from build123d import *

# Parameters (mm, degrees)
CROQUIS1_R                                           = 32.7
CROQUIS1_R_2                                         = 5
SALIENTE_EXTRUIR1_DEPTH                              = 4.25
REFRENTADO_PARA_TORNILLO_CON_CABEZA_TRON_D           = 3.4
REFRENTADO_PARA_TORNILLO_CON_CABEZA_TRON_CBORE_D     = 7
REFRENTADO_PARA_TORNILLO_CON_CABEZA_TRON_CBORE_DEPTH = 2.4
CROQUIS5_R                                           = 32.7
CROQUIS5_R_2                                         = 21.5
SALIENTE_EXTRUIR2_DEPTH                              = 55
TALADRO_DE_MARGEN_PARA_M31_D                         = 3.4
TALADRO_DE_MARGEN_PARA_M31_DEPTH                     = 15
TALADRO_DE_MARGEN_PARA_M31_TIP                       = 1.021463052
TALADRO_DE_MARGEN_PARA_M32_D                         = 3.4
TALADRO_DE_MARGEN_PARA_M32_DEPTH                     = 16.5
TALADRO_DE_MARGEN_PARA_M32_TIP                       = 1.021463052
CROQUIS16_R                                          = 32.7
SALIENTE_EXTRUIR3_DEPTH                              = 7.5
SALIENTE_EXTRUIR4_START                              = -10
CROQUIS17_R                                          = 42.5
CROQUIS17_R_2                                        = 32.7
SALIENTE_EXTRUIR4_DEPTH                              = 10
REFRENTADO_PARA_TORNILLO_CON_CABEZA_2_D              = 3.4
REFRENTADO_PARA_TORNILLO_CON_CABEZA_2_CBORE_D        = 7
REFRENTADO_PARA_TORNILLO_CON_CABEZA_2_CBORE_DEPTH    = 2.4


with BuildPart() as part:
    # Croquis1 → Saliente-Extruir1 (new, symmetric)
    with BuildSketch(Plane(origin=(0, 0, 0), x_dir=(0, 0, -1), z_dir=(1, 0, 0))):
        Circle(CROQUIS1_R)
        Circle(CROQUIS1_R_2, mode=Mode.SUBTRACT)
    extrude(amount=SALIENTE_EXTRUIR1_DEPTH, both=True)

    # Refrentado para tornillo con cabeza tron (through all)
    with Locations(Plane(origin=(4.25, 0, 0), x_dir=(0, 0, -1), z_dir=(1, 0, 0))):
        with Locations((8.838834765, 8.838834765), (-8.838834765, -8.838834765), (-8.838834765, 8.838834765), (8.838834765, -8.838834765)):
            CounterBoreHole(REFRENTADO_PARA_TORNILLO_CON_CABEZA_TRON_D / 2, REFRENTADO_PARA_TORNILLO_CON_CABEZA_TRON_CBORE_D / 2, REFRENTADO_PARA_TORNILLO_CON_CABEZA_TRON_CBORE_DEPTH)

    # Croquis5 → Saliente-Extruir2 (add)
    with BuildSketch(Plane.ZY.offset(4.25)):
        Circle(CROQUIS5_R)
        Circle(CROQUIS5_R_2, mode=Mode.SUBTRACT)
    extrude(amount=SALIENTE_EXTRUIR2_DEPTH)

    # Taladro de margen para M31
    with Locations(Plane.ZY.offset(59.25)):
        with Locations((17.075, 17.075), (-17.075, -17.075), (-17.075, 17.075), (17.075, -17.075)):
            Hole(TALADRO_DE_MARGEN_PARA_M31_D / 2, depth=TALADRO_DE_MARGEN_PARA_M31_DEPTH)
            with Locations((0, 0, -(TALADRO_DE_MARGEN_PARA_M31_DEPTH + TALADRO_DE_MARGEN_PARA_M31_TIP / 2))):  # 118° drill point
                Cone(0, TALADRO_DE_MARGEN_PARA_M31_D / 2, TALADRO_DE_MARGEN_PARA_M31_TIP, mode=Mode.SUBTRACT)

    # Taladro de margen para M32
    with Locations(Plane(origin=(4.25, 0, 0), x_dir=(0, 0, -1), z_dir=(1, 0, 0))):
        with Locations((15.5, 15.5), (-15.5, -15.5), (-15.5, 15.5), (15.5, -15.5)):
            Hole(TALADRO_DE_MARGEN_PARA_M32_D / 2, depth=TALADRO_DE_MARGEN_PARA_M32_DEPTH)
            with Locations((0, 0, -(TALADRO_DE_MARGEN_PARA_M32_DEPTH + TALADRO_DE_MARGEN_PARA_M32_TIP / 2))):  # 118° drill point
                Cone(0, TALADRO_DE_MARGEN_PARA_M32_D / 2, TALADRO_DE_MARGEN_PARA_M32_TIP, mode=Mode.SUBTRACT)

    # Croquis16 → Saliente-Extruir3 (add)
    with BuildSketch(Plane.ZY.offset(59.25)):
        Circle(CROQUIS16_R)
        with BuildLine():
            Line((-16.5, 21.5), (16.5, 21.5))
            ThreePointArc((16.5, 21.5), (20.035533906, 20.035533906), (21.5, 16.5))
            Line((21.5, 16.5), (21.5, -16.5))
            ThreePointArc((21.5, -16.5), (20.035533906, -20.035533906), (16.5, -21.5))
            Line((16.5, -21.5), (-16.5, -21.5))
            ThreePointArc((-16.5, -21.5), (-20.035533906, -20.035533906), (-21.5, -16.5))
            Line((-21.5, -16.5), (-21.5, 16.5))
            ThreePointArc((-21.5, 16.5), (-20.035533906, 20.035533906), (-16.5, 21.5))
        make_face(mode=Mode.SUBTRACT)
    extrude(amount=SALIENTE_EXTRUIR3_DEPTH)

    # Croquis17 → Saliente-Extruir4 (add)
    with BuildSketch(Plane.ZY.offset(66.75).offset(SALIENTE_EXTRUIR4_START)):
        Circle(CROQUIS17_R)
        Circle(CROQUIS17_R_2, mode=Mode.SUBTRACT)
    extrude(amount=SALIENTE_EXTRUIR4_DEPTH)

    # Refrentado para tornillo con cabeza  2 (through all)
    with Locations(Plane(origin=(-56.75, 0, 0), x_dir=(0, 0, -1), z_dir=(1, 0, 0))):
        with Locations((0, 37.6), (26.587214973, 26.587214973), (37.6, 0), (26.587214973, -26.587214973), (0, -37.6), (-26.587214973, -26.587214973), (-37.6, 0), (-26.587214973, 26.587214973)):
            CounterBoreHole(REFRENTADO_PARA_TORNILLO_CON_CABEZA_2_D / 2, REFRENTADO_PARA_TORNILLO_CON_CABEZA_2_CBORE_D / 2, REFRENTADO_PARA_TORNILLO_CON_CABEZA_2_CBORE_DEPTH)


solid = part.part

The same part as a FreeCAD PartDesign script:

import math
import FreeCAD as App
import Part
import Sketcher

V = App.Vector
Q = App.Units.Quantity

doc = App.newDocument("Part")
body = doc.addObject("PartDesign::Body", "Body")

sketch1 = body.newObject("Sketcher::SketchObject", "Sketch")
sketch1.AttachmentSupport = (doc.getObject("YZ_Plane"), [""])
sketch1.MapMode = "FlatFace"
sketch1.addGeometry([
    Part.Circle(V(0, 0, 0), V(0, 0, 1), 33),
    Part.Circle(V(0, 0, 0), V(0, 0, 1), 5),
], False)
sketch1.addConstraint([
    Sketcher.Constraint("Coincident", 0, 3, -1, 1),
    Sketcher.Constraint("Coincident", 1, 3, -1, 1),
    Sketcher.Constraint("Diameter", 1, Q("10 mm")),
    Sketcher.Constraint("Diameter", 0, Q("65.4 mm")),
])
pad1 = body.newObject("PartDesign::Pad", "Pad")
pad1.Profile = sketch1
pad1.Length = 8.5
pad1.Midplane = True

sketch2 = body.newObject("Sketcher::SketchObject", "Sketch001")
sketch2.AttachmentSupport = (doc.getObject("YZ_Plane"), [""])
sketch2.MapMode = "FlatFace"
sketch2.AttachmentOffset = App.Placement(V(0, 0, 4.25), App.Rotation())
sketch2.addGeometry([
    Part.Circle(V(8.8, -8.8, 0), V(0, 0, 1), 1.7),
    Part.Circle(V(-8.8, 8.8, 0), V(0, 0, 1), 1.7),
    Part.Circle(V(8.8, 8.8, 0), V(0, 0, 1), 1.7),
    Part.Circle(V(-8.8, -8.8, 0), V(0, 0, 1), 1.7),
], False)
sketch2.addConstraint([
    Sketcher.Constraint("Equal", 0, 1),
    Sketcher.Constraint("Equal", 1, 2),
    Sketcher.Constraint("Equal", 2, 3),
    Sketcher.Constraint("Symmetric", 0, 3, 1, 3, -1, 1),
    Sketcher.Constraint("Symmetric", 2, 3, 3, 3, -1, 1),
    Sketcher.Constraint("Symmetric", 1, 3, 2, 3, -2),
    Sketcher.Constraint("Diameter", 0, Q("3.4 mm")),
    Sketcher.Constraint("DistanceX", 1, 3, 0, 3, Q("17.67767 mm")),
    Sketcher.Constraint("DistanceY", 0, 3, 1, 3, Q("17.67767 mm")),
])
doc.recompute()
hole = body.newObject("PartDesign::Hole", "Hole")
hole.Profile = sketch2
hole.ThreadType = "None"
hole.Diameter = 3.4
hole.DepthType = "ThroughAll"
hole.HoleCutType = "Counterbore"
hole.HoleCutDiameter = 7
hole.HoleCutDepth = 2.4

sketch3 = body.newObject("Sketcher::SketchObject", "Sketch002")
sketch3.AttachmentSupport = (doc.getObject("YZ_Plane"), [""])
sketch3.MapMode = "FlatFace"
sketch3.AttachmentOffset = App.Placement(V(0, 0, -4.25), App.Rotation())
sketch3.addGeometry([
    Part.Circle(V(0, 0, 0), V(0, 0, 1), 33),
    Part.Circle(V(0, 0, 0), V(0, 0, 1), 22),
], False)
sketch3.addConstraint([
    Sketcher.Constraint("Coincident", 0, 3, -1, 1),
    Sketcher.Constraint("Coincident", 1, 3, -1, 1),
    Sketcher.Constraint("Diameter", 1, Q("43 mm")),
    Sketcher.Constraint("Diameter", 0, Q("65.4 mm")),
])
pad2 = body.newObject("PartDesign::Pad", "Pad001")
pad2.Profile = sketch3
pad2.Length = 55
pad2.Reversed = True

sketch4 = body.newObject("Sketcher::SketchObject", "Sketch003")
sketch4.AttachmentSupport = (doc.getObject("YZ_Plane"), [""])
sketch4.MapMode = "FlatFace"
sketch4.AttachmentOffset = App.Placement(V(0, 0, -59.25), App.Rotation())
sketch4.addGeometry([
    Part.Circle(V(17.1, 17.1, 0), V(0, 0, 1), 1.7),
    Part.Circle(V(-17.1, -17.1, 0), V(0, 0, 1), 1.7),
    Part.Circle(V(17.1, -17.1, 0), V(0, 0, 1), 1.7),
    Part.Circle(V(-17.1, 17.1, 0), V(0, 0, 1), 1.7),
], False)
sketch4.addConstraint([
    Sketcher.Constraint("Equal", 0, 1),
    Sketcher.Constraint("Equal", 1, 2),
    Sketcher.Constraint("Equal", 2, 3),
    Sketcher.Constraint("Symmetric", 0, 3, 1, 3, -1, 1),
    Sketcher.Constraint("Symmetric", 2, 3, 3, 3, -1, 1),
    Sketcher.Constraint("Symmetric", 1, 3, 2, 3, -2),
    Sketcher.Constraint("Diameter", 0, Q("3.4 mm")),
    Sketcher.Constraint("DistanceX", 1, 3, 0, 3, Q("34.15 mm")),
    Sketcher.Constraint("DistanceY", 1, 3, 0, 3, Q("34.15 mm")),
])
doc.recompute()
hole2 = body.newObject("PartDesign::Hole", "Hole001")
hole2.Profile = sketch4
hole2.ThreadType = "None"
hole2.Diameter = 3.4
hole2.DepthType = "Dimension"
hole2.Depth = 15
hole2.DrillPoint = "Angled"
hole2.DrillPointAngle = 118
hole2.Reversed = True

sketch5 = body.newObject("Sketcher::SketchObject", "Sketch004")
sketch5.AttachmentSupport = (doc.getObject("YZ_Plane"), [""])
sketch5.MapMode = "FlatFace"
sketch5.AttachmentOffset = App.Placement(V(0, 0, 4.25), App.Rotation())
sketch5.addGeometry([
    Part.Circle(V(15.5, -15.5, 0), V(0, 0, 1), 1.7),
    Part.Circle(V(-15.5, 15.5, 0), V(0, 0, 1), 1.7),
    Part.Circle(V(15.5, 15.5, 0), V(0, 0, 1), 1.7),
    Part.Circle(V(-15.5, -15.5, 0), V(0, 0, 1), 1.7),
], False)
sketch5.addConstraint([
    Sketcher.Constraint("Equal", 0, 1),
    Sketcher.Constraint("Equal", 1, 2),
    Sketcher.Constraint("Equal", 2, 3),
    Sketcher.Constraint("Symmetric", 0, 3, 1, 3, -1, 1),
    Sketcher.Constraint("Symmetric", 2, 3, 3, 3, -1, 1),
    Sketcher.Constraint("Symmetric", 1, 3, 2, 3, -2),
    Sketcher.Constraint("Diameter", 0, Q("3.4 mm")),
    Sketcher.Constraint("DistanceX", 1, 3, 0, 3, Q("31 mm")),
    Sketcher.Constraint("DistanceY", 0, 3, 1, 3, Q("31 mm")),
])
doc.recompute()
hole3 = body.newObject("PartDesign::Hole", "Hole002")
hole3.Profile = sketch5
hole3.ThreadType = "None"
hole3.Diameter = 3.4
hole3.DepthType = "Dimension"
hole3.Depth = 16.5
hole3.DrillPoint = "Angled"
hole3.DrillPointAngle = 118

sketch6 = body.newObject("Sketcher::SketchObject", "Sketch005")
sketch6.AttachmentSupport = (doc.getObject("YZ_Plane"), [""])
sketch6.MapMode = "FlatFace"
sketch6.AttachmentOffset = App.Placement(V(0, 0, -59.25), App.Rotation())
sketch6.addGeometry([
    Part.Circle(V(0, 0, 0), V(0, 0, 1), 33),
    Part.ArcOfCircle(Part.Circle(V(16, -16, 0), V(0, 0, 1), 5), math.radians(-90), math.radians(0)),
    Part.LineSegment(V(22, -16, 0), V(22, 16, 0)),
    Part.ArcOfCircle(Part.Circle(V(16, 16, 0), V(0, 0, 1), 5), math.radians(0), math.radians(90)),
    Part.LineSegment(V(16, 22, 0), V(-16, 22, 0)),
    Part.ArcOfCircle(Part.Circle(V(-16, 16, 0), V(0, 0, 1), 5), math.radians(90), math.radians(180)),
    Part.LineSegment(V(-22, 16, 0), V(-22, -16, 0)),
    Part.ArcOfCircle(Part.Circle(V(-16, -16, 0), V(0, 0, 1), 5), math.radians(180), math.radians(270)),
    Part.LineSegment(V(-16, -22, 0), V(16, -22, 0)),
], False)
sketch6.addConstraint([
    Sketcher.Constraint("Tangent", 1, 2, 2, 1),
    Sketcher.Constraint("Tangent", 2, 2, 3, 1),
    Sketcher.Constraint("Tangent", 3, 2, 4, 1),
    Sketcher.Constraint("Tangent", 4, 2, 5, 1),
    Sketcher.Constraint("Tangent", 5, 2, 6, 1),
    Sketcher.Constraint("Tangent", 6, 2, 7, 1),
    Sketcher.Constraint("Tangent", 7, 2, 8, 1),
    Sketcher.Constraint("Tangent", 8, 2, 1, 1),
    Sketcher.Constraint("Vertical", 2),
    Sketcher.Constraint("Horizontal", 4),
    Sketcher.Constraint("Vertical", 6),
    Sketcher.Constraint("Horizontal", 8),
    Sketcher.Constraint("Coincident", 0, 3, -1, 1),
    Sketcher.Constraint("Equal", 1, 3),
    Sketcher.Constraint("Equal", 3, 5),
    Sketcher.Constraint("Equal", 5, 7),
    Sketcher.Constraint("Symmetric", 1, 3, 5, 3, -1, 1),
    Sketcher.Constraint("Equal", 8, 2),
    Sketcher.Constraint("Radius", 1, Q("5 mm")),
    Sketcher.Constraint("Diameter", 0, Q("65.4 mm")),
    Sketcher.Constraint("DistanceX", 4, 2, 4, 1, Q("33 mm")),
])
pad3 = body.newObject("PartDesign::Pad", "Pad002")
pad3.Profile = sketch6
pad3.Length = 7.5
pad3.Reversed = True

sketch7 = body.newObject("Sketcher::SketchObject", "Sketch006")
sketch7.AttachmentSupport = (doc.getObject("YZ_Plane"), [""])
sketch7.MapMode = "FlatFace"
sketch7.AttachmentOffset = App.Placement(V(0, 0, -56.75), App.Rotation())
sketch7.addGeometry([
    Part.Circle(V(0, 0, 0), V(0, 0, 1), 42),
    Part.Circle(V(0, 0, 0), V(0, 0, 1), 33),
], False)
sketch7.addConstraint([
    Sketcher.Constraint("Coincident", 0, 3, -1, 1),
    Sketcher.Constraint("Coincident", 1, 3, -1, 1),
    Sketcher.Constraint("Diameter", 0, Q("85 mm")),
    Sketcher.Constraint("Diameter", 1, Q("65.4 mm")),
])
pad4 = body.newObject("PartDesign::Pad", "Pad003")
pad4.Profile = sketch7
pad4.Length = 10
pad4.Reversed = True

sketch8 = body.newObject("Sketcher::SketchObject", "Sketch007")
sketch8.AttachmentSupport = (doc.getObject("YZ_Plane"), [""])
sketch8.MapMode = "FlatFace"
sketch8.AttachmentOffset = App.Placement(V(0, 0, -56.75), App.Rotation())
sketch8.addGeometry([
    Part.Circle(V(37.6, 0, 0), V(0, 0, 1), 1.7),
    Part.Circle(V(26.6, -26.6, 0), V(0, 0, 1), 1.7),
    Part.Circle(V(0, -37.6, 0), V(0, 0, 1), 1.7),
    Part.Circle(V(-26.6, -26.6, 0), V(0, 0, 1), 1.7),
    Part.Circle(V(-37.6, 0, 0), V(0, 0, 1), 1.7),
    Part.Circle(V(-26.6, 26.6, 0), V(0, 0, 1), 1.7),
    Part.Circle(V(0, 37.6, 0), V(0, 0, 1), 1.7),
    Part.Circle(V(26.6, 26.6, 0), V(0, 0, 1), 1.7),
], False)
sketch8.addConstraint([
    Sketcher.Constraint("Equal", 0, 1),
    Sketcher.Constraint("Equal", 1, 2),
    Sketcher.Constraint("Equal", 2, 3),
    Sketcher.Constraint("Equal", 3, 4),
    Sketcher.Constraint("Equal", 4, 5),
    Sketcher.Constraint("Equal", 5, 6),
    Sketcher.Constraint("Equal", 6, 7),
    Sketcher.Constraint("Symmetric", 0, 3, 4, 3, -1, 1),
    Sketcher.Constraint("Symmetric", 1, 3, 5, 3, -1, 1),
    Sketcher.Constraint("Symmetric", 2, 3, 6, 3, -1, 1),
    Sketcher.Constraint("Symmetric", 3, 3, 7, 3, -1, 1),
    Sketcher.Constraint("Symmetric", 1, 3, 3, 3, -2),
    Sketcher.Constraint("PointOnObject", 0, 3, -1),
    Sketcher.Constraint("PointOnObject", 2, 3, -2),
    Sketcher.Constraint("Diameter", 0, Q("3.4 mm")),
    Sketcher.Constraint("DistanceX", -1, 1, 0, 3, Q("37.6 mm")),
    Sketcher.Constraint("DistanceY", 2, 3, -1, 1, Q("37.6 mm")),
    Sketcher.Constraint("DistanceX", 3, 3, 1, 3, Q("53.17443 mm")),
    Sketcher.Constraint("DistanceY", 3, 3, 5, 3, Q("53.17443 mm")),
])
doc.recompute()
hole4 = body.newObject("PartDesign::Hole", "Hole003")
hole4.Profile = sketch8
hole4.ThreadType = "None"
hole4.Diameter = 3.4
hole4.DepthType = "ThroughAll"
hole4.HoleCutType = "Counterbore"
hole4.HoleCutDiameter = 7
hole4.HoleCutDepth = 2.4

doc.recompute()
